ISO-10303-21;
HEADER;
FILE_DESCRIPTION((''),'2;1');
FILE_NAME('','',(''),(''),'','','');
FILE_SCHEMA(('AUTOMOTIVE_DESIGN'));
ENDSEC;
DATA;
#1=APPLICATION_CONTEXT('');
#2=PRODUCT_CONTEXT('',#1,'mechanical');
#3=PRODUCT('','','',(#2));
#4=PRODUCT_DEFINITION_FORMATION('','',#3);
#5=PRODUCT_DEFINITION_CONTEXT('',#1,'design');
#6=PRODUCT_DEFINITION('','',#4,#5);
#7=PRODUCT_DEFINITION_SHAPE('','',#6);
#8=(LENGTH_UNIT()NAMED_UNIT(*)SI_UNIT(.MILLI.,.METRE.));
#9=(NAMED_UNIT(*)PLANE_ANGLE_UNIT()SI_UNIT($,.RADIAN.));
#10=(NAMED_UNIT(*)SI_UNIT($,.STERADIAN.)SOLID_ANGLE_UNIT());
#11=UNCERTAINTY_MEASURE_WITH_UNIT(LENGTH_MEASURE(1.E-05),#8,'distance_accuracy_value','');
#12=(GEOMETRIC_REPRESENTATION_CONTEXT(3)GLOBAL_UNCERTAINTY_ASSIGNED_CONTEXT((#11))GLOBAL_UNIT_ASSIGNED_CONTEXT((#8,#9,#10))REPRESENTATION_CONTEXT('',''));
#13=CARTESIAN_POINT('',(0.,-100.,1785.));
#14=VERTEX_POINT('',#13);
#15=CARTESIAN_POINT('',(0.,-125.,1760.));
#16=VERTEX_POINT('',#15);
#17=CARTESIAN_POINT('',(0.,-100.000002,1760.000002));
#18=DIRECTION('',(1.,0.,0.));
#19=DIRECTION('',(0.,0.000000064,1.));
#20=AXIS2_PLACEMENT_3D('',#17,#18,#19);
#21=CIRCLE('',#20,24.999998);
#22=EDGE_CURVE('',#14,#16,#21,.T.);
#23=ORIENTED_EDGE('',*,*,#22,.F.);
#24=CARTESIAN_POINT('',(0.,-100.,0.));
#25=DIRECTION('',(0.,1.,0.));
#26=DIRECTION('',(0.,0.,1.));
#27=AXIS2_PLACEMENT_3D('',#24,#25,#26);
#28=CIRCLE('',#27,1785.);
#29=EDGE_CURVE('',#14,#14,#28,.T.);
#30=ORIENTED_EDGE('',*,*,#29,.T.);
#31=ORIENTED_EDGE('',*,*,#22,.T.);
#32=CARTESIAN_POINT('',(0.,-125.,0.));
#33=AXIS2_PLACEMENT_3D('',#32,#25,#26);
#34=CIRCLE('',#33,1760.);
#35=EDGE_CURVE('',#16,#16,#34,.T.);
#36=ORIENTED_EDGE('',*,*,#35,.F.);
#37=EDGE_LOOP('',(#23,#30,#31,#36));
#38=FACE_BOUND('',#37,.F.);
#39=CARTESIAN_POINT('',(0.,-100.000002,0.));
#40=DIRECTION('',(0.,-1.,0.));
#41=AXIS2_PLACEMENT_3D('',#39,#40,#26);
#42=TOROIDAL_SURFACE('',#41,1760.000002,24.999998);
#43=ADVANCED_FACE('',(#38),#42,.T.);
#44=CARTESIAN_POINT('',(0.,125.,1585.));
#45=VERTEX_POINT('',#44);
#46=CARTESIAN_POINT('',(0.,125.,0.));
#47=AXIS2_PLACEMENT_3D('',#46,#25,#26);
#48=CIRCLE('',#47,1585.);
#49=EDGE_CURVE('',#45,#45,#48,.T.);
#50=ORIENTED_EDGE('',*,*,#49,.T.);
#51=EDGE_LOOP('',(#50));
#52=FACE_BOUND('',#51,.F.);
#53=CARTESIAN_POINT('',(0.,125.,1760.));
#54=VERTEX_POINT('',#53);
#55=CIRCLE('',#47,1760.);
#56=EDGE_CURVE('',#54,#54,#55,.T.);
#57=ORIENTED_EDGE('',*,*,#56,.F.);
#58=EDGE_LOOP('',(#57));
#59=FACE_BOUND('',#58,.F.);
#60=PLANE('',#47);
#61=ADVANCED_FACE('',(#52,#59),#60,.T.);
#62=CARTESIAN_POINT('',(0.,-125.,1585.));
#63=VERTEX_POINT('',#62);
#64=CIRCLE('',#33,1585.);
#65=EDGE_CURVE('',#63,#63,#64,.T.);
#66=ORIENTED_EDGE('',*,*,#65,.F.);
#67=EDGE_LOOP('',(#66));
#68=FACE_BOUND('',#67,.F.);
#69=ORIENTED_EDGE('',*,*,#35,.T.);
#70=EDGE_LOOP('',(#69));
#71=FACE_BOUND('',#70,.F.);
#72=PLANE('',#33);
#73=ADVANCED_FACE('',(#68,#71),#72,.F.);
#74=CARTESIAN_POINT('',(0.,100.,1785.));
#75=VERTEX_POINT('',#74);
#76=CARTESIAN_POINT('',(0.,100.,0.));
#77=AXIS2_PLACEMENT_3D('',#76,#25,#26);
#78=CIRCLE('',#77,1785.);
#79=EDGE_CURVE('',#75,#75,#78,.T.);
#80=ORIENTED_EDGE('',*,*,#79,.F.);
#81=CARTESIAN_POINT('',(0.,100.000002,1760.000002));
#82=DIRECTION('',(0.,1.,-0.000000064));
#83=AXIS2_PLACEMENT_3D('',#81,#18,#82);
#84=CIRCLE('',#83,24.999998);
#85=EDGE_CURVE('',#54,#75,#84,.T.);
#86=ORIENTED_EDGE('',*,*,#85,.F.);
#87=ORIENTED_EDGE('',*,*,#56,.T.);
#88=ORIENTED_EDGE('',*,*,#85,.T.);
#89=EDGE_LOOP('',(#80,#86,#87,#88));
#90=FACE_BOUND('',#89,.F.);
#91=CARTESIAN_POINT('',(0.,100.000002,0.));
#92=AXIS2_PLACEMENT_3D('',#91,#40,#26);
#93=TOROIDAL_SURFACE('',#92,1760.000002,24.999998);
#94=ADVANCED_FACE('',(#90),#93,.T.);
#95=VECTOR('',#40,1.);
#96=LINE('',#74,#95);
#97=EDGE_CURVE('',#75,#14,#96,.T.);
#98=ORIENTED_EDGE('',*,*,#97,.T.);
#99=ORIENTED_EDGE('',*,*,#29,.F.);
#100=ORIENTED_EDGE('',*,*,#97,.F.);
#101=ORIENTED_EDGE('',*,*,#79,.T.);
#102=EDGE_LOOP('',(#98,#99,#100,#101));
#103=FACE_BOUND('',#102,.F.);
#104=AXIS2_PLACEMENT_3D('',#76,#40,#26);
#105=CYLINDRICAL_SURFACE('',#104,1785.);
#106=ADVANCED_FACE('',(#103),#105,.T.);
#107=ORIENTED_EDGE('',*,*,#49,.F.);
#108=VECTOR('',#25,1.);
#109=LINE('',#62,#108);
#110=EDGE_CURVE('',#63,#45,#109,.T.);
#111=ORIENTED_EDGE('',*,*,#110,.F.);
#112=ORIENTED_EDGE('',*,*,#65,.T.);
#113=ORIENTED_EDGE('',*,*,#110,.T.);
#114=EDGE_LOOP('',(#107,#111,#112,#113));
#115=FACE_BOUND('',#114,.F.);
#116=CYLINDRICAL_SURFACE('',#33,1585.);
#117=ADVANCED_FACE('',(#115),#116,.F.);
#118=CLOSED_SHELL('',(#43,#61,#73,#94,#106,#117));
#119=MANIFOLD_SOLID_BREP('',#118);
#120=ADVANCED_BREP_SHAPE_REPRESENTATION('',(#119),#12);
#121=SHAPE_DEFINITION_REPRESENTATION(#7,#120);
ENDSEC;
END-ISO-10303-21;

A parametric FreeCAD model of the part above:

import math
import FreeCAD as App
import Part
import Sketcher

doc = App.newDocument("Part")
body = doc.addObject("PartDesign::Body", "Body")

# Sketch on YZ plane
sketch1 = doc.addObject("Sketcher::SketchObject", "Sketch")
body.addObject(sketch1)
sketch1.AttachmentSupport = (doc.YZ_Plane, [""])
sketch1.MapMode = "FlatFace"
sketch1.addGeometry(Part.LineSegment(App.Vector(-125, 1585, 0), App.Vector(125, 1585, 0)), False)
sketch1.addGeometry(Part.LineSegment(App.Vector(125, 1585, 0), App.Vector(125, 1760, 0)), False)
sketch1.addGeometry(Part.ArcOfCircle(Part.Circle(App.Vector(100, 1760, 0), App.Vector(0, 0, 1), 25), math.radians(0), math.radians(90)), False)
sketch1.addGeometry(Part.LineSegment(App.Vector(100, 1785, 0), App.Vector(-100, 1785, 0)), False)
sketch1.addGeometry(Part.ArcOfCircle(Part.Circle(App.Vector(-100, 1760, 0), App.Vector(0, 0, 1), 25), math.radians(90), math.radians(180)), False)
sketch1.addGeometry(Part.LineSegment(App.Vector(-125, 1760, 0), App.Vector(-125, 1585, 0)), False)
sketch1.addConstraint(Sketcher.Constraint("Coincident", 0, 2, 1, 1))
sketch1.addConstraint(Sketcher.Constraint("Tangent", 1, 2, 2, 1))
sketch1.addConstraint(Sketcher.Constraint("Tangent", 2, 2, 3, 1))
sketch1.addConstraint(Sketcher.Constraint("Tangent", 3, 2, 4, 1))
sketch1.addConstraint(Sketcher.Constraint("Tangent", 4, 2, 5, 1))
sketch1.addConstraint(Sketcher.Constraint("Coincident", 5, 2, 0, 1))
sketch1.addConstraint(Sketcher.Constraint("Horizontal", 0))
sketch1.addConstraint(Sketcher.Constraint("Vertical", 1))
sketch1.addConstraint(Sketcher.Constraint("Horizontal", 3))
sketch1.addConstraint(Sketcher.Constraint("Vertical", 5))
sketch1.addConstraint(Sketcher.Constraint("Equal", 2, 4))
sketch1.addConstraint(Sketcher.Constraint("Radius", 2, 24.999998))
sketch1.addConstraint(Sketcher.Constraint("DistanceX", 0, 1, 0, 2, 250.0))
sketch1.addConstraint(Sketcher.Constraint("DistanceY", 1, 1, 1, 2, 175.0))
sketch1.addConstraint(Sketcher.Constraint("DistanceX", -1, 1, 2, 3, 100.000002))
sketch1.addConstraint(Sketcher.Constraint("DistanceY", -1, 1, 2, 3, 1760.000002))
revolution = doc.addObject("PartDesign::Revolution", "Revolution")
body.addObject(revolution)
revolution.Profile = sketch1
revolution.ReferenceAxis = (sketch1, ["H_Axis"])
revolution.Angle = 360

doc.recompute()
